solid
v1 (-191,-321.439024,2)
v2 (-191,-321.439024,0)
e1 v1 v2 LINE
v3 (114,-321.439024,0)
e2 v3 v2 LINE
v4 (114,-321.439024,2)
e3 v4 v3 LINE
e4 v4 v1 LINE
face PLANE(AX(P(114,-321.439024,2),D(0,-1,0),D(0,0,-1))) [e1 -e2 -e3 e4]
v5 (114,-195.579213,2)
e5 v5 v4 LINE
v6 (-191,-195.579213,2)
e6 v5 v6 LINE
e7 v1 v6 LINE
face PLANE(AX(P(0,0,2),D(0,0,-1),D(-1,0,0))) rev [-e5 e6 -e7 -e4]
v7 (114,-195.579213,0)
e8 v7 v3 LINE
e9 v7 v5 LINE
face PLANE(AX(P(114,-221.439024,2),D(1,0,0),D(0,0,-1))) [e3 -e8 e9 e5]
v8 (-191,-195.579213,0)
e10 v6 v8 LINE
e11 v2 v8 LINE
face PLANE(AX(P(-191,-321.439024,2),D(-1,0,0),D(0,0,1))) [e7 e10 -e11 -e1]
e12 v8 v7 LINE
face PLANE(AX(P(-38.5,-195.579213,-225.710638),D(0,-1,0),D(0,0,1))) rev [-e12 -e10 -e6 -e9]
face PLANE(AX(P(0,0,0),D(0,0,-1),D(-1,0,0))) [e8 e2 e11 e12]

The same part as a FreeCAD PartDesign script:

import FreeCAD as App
import Part
import Sketcher


def add_polygon(sketch, points):
    """Adds a closed chain of lines whose ends are joined by coincident constraints."""
    first, n = sketch.GeometryCount, len(points)
    for a, b in zip(points, points[1:] + points[:1]):
        sketch.addGeometry(Part.LineSegment(App.Vector(*a, 0), App.Vector(*b, 0)), False)
    for i in range(n):
        sketch.addConstraint(Sketcher.Constraint("Coincident", first + i, 2, first + (i + 1) % n, 1))

doc = App.newDocument("Part")
body = doc.addObject("PartDesign::Body", "Body")

# Sketch on XY plane
sketch1 = doc.addObject("Sketcher::SketchObject", "Sketch")
body.addObject(sketch1)
sketch1.AttachmentSupport = (doc.XY_Plane, [""])
sketch1.MapMode = "FlatFace"
add_polygon(sketch1, [(114, -221), (114, -321), (-191, -321), (-191, -221)])  # lines 0-3
sketch1.addConstraint([
    Sketcher.Constraint("Vertical", 0),
    Sketcher.Constraint("Horizontal", 1),
    Sketcher.Constraint("Vertical", 2),
    Sketcher.Constraint("Horizontal", 3),
    Sketcher.Constraint("DistanceX", 1, 2, 1, 1, 305.0),
    Sketcher.Constraint("DistanceY", 0, 2, 0, 1, 100.0),
    Sketcher.Constraint("DistanceX", -1, 1, 0, 2, 114.0),
    Sketcher.Constraint("DistanceY", 0, 2, -1, 1, 321.439024),
])
pad1 = doc.addObject("PartDesign::Pad", "Pad")
body.addObject(pad1)
pad1.Profile = sketch1
pad1.Length = 2

# Sketch on XZ plane
sketch2 = doc.addObject("Sketcher::SketchObject", "Sketch001")
body.addObject(sketch2)
sketch2.AttachmentSupport = (doc.XZ_Plane, [""])
sketch2.MapMode = "FlatFace"
sketch2.AttachmentOffset = App.Placement(App.Vector(0, 0, 221.439024), App.Rotation())
add_polygon(sketch2, [(-191, 0), (-191, 2), (114, 2), (114, 0)])  # lines 0-3
sketch2.addConstraint([
    Sketcher.Constraint("Vertical", 0),
    Sketcher.Constraint("Horizontal", 1),
    Sketcher.Constraint("Vertical", 2),
    Sketcher.Constraint("Horizontal", 3),
    Sketcher.Constraint("PointOnObject", 2, 2, -1),
    Sketcher.Constraint("DistanceX", 1, 1, 1, 2, 305.0),
    Sketcher.Constraint("DistanceY", 0, 1, 0, 2, 2.0),
    Sketcher.Constraint("DistanceX", 0, 2, -1, 1, 191.0),
])
pad2 = doc.addObject("PartDesign::Pad", "Pad001")
body.addObject(pad2)
pad2.Profile = sketch2
pad2.Length = 25.859812
pad2.Reversed = True

doc.recompute()
